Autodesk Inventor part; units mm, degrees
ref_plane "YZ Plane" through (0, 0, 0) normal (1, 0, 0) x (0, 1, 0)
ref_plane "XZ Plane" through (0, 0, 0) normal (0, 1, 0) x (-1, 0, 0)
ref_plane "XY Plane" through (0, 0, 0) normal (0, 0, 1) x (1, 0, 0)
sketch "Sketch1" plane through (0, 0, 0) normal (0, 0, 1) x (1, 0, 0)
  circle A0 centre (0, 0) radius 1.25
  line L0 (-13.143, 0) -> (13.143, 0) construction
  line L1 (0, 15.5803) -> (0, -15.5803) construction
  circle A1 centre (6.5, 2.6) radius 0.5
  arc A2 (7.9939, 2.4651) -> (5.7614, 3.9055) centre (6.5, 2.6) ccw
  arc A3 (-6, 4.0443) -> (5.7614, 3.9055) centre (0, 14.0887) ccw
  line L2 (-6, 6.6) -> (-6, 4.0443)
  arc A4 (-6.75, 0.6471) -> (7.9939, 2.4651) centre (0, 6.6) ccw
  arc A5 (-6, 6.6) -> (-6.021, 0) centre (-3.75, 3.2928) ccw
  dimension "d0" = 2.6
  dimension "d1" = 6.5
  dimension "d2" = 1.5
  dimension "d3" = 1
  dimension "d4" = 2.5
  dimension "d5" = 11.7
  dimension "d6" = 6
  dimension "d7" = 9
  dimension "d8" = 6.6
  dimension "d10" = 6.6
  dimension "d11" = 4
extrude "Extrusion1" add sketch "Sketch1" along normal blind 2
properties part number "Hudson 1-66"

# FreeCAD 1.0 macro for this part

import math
import FreeCAD as App
import Part
import Sketcher

V = App.Vector
Q = App.Units.Quantity

doc = App.newDocument("Part")
body = doc.addObject("PartDesign::Body", "Body")

sketch1 = body.newObject("Sketcher::SketchObject", "Sketch")
sketch1.AttachmentSupport = (doc.getObject("XY_Plane"), [""])
sketch1.MapMode = "FlatFace"
sketch1.addGeometry([
    Part.ArcOfCircle(Part.Circle(V(0, 6.6, 0), V(0, 0, 1), 9), math.radians(-139), math.radians(-27)),
    Part.ArcOfCircle(Part.Circle(V(6.5, 2.6, 0), V(0, 0, 1), 1.5), math.radians(-5), math.radians(119)),
    Part.ArcOfCircle(Part.Circle(V(0, 14.1, 0), V(0, 0, 1), 11.7), math.radians(-121), math.radians(-60)),
    Part.LineSegment(V(-6, 4, 0), V(-6, 6.6, 0)),
    Part.ArcOfCircle(Part.Circle(V(-3.8, 3.3, 0), V(0, 0, 1), 4), math.radians(124), math.radians(221)),
    Part.Circle(V(0, 0, 0), V(0, 0, 1), 1.2),
    Part.Circle(V(6.5, 2.6, 0), V(0, 0, 1), 0.5),
], False)
sketch1.addConstraint([
    Sketcher.Constraint("Coincident", 0, 2, 1, 1),
    Sketcher.Constraint("Tangent", 1, 2, 2, 2),
    Sketcher.Constraint("Coincident", 2, 1, 3, 1),
    Sketcher.Constraint("Coincident", 3, 2, 4, 1),
    Sketcher.Constraint("Tangent", 4, 2, 0, 1),
    Sketcher.Constraint("Vertical", 3),
    Sketcher.Constraint("Coincident", 5, 3, -1, 1),
    Sketcher.Constraint("Coincident", 6, 3, 1, 3),
    Sketcher.Constraint("PointOnObject", 0, 3, -2),
    Sketcher.Constraint("PointOnObject", 2, 3, -2),
    Sketcher.Constraint("Horizontal", 0, 3, 3, 2),
    Sketcher.Constraint("Diameter", 6, Q("1 mm")),
    Sketcher.Constraint("Radius", 0, Q("9 mm")),
    Sketcher.Constraint("Radius", 4, Q("4 mm")),
    Sketcher.Constraint("Diameter", 5, Q("2.5 mm")),
    Sketcher.Constraint("Radius", 1, Q("1.5 mm")),
    Sketcher.Constraint("Radius", 2, Q("11.7 mm")),
    Sketcher.Constraint("DistanceX", 2, 1, -1, 1, Q("6 mm")),
    Sketcher.Constraint("DistanceY", 1, 3, 0, 3, Q("4 mm")),
    Sketcher.Constraint("DistanceY", -1, 1, 0, 3, Q("6.6 mm")),
    Sketcher.Constraint("DistanceX", -1, 1, 1, 3, Q("6.5 mm")),
])
pad1 = body.newObject("PartDesign::Pad", "Pad")
pad1.Profile = sketch1
pad1.Length = 2

doc.recompute()
